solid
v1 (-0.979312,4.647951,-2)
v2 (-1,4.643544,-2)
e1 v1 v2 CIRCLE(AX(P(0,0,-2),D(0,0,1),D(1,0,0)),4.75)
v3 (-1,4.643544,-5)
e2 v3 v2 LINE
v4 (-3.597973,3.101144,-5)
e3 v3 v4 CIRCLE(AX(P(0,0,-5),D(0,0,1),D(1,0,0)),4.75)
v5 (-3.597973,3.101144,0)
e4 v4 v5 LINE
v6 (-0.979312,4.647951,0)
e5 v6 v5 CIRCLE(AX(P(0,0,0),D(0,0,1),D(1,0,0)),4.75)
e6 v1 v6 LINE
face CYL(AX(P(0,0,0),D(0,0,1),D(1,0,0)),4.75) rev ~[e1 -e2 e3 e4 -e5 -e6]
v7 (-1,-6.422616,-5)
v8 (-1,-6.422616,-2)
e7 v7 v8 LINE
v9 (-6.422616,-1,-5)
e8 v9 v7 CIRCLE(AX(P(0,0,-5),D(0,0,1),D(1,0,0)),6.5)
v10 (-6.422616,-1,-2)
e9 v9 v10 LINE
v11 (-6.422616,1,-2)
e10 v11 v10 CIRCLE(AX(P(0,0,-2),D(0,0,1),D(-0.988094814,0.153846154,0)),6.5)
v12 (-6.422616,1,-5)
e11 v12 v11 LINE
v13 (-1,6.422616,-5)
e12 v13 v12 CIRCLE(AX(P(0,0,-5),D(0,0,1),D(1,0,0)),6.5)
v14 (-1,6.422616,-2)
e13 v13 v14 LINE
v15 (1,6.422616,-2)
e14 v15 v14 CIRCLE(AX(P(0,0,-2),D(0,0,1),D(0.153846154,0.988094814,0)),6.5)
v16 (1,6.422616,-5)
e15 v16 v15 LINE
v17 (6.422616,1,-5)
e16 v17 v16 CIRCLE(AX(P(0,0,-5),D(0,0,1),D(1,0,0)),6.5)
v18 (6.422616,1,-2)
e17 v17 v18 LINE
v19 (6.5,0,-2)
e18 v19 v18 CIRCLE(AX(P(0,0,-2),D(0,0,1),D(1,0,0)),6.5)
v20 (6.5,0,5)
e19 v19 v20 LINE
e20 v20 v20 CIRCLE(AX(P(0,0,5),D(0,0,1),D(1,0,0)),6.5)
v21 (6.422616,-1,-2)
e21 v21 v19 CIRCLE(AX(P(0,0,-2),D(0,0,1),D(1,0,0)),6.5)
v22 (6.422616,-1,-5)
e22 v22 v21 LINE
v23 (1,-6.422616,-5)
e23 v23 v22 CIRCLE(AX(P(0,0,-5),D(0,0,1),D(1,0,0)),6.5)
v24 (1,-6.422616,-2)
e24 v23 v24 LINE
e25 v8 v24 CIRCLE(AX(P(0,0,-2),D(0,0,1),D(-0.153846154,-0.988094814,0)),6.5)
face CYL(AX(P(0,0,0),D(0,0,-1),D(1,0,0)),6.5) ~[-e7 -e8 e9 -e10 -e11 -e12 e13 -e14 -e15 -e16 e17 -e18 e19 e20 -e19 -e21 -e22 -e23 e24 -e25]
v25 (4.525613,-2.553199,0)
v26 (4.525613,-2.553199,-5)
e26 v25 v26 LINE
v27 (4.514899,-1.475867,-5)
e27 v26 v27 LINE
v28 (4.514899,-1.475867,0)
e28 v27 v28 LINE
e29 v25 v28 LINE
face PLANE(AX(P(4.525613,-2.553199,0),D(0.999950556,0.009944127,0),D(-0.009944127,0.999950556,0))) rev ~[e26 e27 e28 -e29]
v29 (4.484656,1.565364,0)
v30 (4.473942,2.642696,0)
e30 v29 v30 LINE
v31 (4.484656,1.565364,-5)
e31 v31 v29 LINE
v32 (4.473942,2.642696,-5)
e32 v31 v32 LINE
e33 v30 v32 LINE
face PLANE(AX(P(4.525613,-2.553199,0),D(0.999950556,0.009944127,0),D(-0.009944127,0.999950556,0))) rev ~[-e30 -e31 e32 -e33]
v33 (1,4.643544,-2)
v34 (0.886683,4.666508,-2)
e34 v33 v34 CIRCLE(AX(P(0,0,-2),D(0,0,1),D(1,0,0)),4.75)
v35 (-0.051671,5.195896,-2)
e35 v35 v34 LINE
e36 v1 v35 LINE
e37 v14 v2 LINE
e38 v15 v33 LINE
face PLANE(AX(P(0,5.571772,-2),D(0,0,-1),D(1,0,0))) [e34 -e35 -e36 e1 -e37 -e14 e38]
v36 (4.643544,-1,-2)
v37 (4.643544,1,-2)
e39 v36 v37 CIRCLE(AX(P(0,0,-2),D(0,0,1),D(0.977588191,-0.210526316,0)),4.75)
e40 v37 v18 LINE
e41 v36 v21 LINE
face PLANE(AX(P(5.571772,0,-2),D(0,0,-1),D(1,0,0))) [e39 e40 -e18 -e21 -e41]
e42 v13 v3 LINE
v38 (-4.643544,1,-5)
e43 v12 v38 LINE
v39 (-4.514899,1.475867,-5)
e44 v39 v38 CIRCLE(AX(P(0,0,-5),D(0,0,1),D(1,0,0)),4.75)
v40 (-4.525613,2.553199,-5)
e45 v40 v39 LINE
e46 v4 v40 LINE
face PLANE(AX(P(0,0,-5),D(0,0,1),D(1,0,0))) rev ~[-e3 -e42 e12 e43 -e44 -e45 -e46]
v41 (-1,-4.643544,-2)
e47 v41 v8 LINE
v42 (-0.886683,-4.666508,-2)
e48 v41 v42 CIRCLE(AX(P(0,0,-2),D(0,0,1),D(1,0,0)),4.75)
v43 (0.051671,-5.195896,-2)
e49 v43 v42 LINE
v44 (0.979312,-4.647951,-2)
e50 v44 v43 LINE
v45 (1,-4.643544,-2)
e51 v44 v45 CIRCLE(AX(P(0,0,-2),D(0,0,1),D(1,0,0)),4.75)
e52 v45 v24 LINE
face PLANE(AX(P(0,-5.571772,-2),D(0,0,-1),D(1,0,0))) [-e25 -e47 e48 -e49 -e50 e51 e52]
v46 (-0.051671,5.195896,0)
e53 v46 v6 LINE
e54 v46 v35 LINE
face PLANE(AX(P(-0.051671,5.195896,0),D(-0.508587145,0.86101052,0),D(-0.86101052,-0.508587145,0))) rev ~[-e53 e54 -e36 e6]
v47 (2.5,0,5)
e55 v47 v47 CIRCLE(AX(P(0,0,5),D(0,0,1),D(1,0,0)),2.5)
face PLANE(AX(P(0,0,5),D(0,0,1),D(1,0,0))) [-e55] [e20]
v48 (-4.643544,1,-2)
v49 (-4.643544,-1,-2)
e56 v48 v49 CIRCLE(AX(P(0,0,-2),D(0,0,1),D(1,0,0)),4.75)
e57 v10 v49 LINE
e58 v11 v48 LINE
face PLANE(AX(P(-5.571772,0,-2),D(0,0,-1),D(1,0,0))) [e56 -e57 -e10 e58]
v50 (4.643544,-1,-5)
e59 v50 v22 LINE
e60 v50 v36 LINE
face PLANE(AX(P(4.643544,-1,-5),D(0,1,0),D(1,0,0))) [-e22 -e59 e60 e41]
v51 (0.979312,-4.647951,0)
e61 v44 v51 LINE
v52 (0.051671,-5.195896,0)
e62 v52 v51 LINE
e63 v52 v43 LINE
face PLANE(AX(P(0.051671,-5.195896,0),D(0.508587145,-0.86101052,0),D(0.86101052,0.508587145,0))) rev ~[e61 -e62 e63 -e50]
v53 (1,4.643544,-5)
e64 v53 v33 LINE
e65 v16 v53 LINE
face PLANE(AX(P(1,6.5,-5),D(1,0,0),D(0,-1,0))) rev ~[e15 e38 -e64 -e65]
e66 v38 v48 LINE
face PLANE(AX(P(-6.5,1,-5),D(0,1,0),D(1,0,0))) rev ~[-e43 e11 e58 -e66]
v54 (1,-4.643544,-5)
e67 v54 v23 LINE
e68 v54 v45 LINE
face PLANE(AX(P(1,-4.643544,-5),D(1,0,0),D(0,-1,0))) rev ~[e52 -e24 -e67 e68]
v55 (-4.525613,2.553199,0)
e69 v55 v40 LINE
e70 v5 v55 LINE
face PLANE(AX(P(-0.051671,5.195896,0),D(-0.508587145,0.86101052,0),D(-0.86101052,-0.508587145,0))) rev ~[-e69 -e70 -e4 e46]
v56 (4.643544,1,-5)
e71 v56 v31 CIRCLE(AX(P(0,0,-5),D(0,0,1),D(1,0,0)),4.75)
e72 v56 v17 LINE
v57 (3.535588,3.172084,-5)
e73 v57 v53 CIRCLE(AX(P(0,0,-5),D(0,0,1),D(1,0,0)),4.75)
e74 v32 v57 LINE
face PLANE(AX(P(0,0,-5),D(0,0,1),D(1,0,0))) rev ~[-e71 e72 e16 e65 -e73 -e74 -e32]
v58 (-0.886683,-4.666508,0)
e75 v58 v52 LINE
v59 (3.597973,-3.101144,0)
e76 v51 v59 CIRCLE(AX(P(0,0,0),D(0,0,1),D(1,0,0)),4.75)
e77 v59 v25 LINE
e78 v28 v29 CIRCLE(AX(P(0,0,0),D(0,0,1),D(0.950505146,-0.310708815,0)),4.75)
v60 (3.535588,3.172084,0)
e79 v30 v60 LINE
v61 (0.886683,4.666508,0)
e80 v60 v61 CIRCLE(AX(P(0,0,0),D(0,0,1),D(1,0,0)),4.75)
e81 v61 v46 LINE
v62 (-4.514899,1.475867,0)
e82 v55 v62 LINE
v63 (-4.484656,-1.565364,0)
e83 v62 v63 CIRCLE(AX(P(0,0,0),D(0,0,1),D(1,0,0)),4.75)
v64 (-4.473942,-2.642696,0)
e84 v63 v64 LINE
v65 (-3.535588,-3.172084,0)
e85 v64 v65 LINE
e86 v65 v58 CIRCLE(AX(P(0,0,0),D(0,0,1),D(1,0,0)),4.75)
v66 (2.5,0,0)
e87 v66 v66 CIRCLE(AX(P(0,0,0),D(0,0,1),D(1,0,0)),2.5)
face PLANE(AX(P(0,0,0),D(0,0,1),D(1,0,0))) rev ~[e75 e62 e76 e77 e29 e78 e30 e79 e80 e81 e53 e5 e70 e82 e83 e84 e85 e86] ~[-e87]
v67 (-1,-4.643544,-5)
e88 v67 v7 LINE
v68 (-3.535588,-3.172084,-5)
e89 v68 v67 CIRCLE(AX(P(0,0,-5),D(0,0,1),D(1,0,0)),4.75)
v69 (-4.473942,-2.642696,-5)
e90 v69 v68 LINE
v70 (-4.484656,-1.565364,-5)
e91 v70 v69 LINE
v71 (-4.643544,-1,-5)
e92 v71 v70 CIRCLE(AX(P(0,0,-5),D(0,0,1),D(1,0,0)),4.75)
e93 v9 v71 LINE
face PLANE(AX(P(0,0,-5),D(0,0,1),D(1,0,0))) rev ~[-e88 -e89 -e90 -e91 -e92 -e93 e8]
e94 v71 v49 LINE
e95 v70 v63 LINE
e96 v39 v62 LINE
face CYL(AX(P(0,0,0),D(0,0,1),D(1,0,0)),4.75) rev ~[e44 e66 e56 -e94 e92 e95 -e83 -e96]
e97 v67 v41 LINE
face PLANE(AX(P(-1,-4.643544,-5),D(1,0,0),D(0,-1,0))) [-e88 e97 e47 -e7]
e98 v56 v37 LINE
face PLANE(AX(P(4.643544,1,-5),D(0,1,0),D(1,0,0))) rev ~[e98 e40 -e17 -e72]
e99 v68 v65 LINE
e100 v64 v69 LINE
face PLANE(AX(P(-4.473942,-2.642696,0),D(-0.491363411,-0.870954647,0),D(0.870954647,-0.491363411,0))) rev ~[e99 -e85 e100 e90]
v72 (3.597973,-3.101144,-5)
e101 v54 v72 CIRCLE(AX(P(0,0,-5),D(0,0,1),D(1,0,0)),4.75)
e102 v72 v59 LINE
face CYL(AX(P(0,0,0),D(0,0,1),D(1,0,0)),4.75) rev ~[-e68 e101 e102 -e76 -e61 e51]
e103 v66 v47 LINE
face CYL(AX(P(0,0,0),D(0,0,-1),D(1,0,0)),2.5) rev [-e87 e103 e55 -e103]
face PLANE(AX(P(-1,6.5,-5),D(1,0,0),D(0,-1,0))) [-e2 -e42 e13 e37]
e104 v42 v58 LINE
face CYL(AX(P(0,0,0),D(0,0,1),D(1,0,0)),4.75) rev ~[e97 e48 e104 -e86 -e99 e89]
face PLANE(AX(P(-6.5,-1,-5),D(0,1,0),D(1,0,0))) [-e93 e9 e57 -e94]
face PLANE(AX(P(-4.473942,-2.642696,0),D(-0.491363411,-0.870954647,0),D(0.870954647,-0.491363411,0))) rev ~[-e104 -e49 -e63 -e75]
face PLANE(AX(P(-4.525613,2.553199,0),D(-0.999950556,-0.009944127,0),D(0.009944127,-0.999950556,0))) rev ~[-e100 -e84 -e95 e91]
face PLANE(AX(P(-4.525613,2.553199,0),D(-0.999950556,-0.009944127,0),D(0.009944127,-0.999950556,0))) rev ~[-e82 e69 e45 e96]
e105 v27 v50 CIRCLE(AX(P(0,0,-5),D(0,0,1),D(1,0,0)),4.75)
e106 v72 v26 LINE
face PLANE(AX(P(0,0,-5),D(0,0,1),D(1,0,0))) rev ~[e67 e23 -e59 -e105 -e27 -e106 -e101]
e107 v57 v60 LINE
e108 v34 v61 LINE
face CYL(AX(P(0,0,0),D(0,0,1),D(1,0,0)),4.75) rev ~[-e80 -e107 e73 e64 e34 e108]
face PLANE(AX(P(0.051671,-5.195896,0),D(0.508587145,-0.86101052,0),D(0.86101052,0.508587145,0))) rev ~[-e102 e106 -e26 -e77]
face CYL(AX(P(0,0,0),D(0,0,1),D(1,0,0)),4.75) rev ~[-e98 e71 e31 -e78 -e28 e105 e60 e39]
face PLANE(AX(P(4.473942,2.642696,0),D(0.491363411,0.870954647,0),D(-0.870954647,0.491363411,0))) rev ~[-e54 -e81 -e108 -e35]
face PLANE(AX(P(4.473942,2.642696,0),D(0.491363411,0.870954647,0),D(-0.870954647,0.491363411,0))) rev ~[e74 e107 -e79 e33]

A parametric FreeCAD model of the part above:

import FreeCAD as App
import Part
import Sketcher
from FreeCAD import Vector

doc = App.newDocument("Part")
body = doc.addObject("PartDesign::Body", "Body")

sketch1 = doc.addObject("Sketcher::SketchObject", "Sketch")
body.addObject(sketch1)
sketch1.AttachmentSupport = (doc.XY_Plane, [""])
sketch1.MapMode = "FlatFace"
sketch1.addGeometry([
    Part.Circle(Vector(0, 0, 0), Vector(0, 0, 1), 6.5),
    Part.Circle(Vector(0, 0, 0), Vector(0, 0, 1), 4.8),
], False)
sketch1.addConstraint([
    Sketcher.Constraint("Coincident", 0, 3, -1, 1),
    Sketcher.Constraint("Coincident", 1, 3, -1, 1),
    Sketcher.Constraint("Diameter", 0, 13.0),
    Sketcher.Constraint("Diameter", 1, 9.5),
])
pad1 = doc.addObject("PartDesign::Pad", "Pad")
body.addObject(pad1)
pad1.Profile = sketch1
pad1.Length = 5
pad1.Reversed = True

sketch2 = doc.addObject("Sketcher::SketchObject", "Sketch001")
body.addObject(sketch2)
sketch2.AttachmentSupport = (doc.XY_Plane, [""])
sketch2.MapMode = "FlatFace"
sketch2.addGeometry([
    Part.Circle(Vector(0, 0, 0), Vector(0, 0, 1), 6.5),
    Part.Circle(Vector(0, 0, 0), Vector(0, 0, 1), 2.5),
], False)
sketch2.addConstraint([
    Sketcher.Constraint("Coincident", 0, 3, -1, 1),
    Sketcher.Constraint("Coincident", 1, 3, -1, 1),
    Sketcher.Constraint("Diameter", 0, 13.0),
    Sketcher.Constraint("Diameter", 1, 5.0),
])
pad2 = doc.addObject("PartDesign::Pad", "Pad001")
body.addObject(pad2)
pad2.Profile = sketch2
pad2.Length = 5

sketch3 = doc.addObject("Sketcher::SketchObject", "Sketch002")
body.addObject(sketch3)
sketch3.AttachmentSupport = (doc.XY_Plane, [""])
sketch3.MapMode = "FlatFace"
sketch3.AttachmentOffset = App.Placement(Vector(0, 0, -5), App.Rotation())
sketch3.addGeometry([
    Part.LineSegment(Vector(-6.5, -1, 0), Vector(-6.5, 1, 0)),
    Part.LineSegment(Vector(-6.5, 1, 0), Vector(-4.6, 1, 0)),
    Part.LineSegment(Vector(-4.6, 1, 0), Vector(-4.6, -1, 0)),
    Part.LineSegment(Vector(-4.6, -1, 0), Vector(-6.5, -1, 0)),
    Part.LineSegment(Vector(-1, 4.6, 0), Vector(-1, 6.5, 0)),
    Part.LineSegment(Vector(-1, 6.5, 0), Vector(1, 6.5, 0)),
    Part.LineSegment(Vector(1, 6.5, 0), Vector(1, 4.6, 0)),
    Part.LineSegment(Vector(1, 4.6, 0), Vector(-1, 4.6, 0)),
    Part.LineSegment(Vector(4.6, -1, 0), Vector(4.6, 1, 0)),
    Part.LineSegment(Vector(4.6, 1, 0), Vector(6.5, 1, 0)),
    Part.LineSegment(Vector(6.5, 1, 0), Vector(6.5, -1, 0)),
    Part.LineSegment(Vector(6.5, -1, 0), Vector(4.6, -1, 0)),
    Part.LineSegment(Vector(-1, -6.5, 0), Vector(-1, -4.6, 0)),
    Part.LineSegment(Vector(-1, -4.6, 0), Vector(1, -4.6, 0)),
    Part.LineSegment(Vector(1, -4.6, 0), Vector(1, -6.5, 0)),
    Part.LineSegment(Vector(1, -6.5, 0), Vector(-1, -6.5, 0)),
], False)
sketch3.addConstraint([
    Sketcher.Constraint("Coincident", 0, 2, 1, 1),
    Sketcher.Constraint("Coincident", 1, 2, 2, 1),
    Sketcher.Constraint("Coincident", 2, 2, 3, 1),
    Sketcher.Constraint("Coincident", 3, 2, 0, 1),
    Sketcher.Constraint("Coincident", 4, 2, 5, 1),
    Sketcher.Constraint("Coincident", 5, 2, 6, 1),
    Sketcher.Constraint("Coincident", 6, 2, 7, 1),
    Sketcher.Constraint("Coincident", 7, 2, 4, 1),
    Sketcher.Constraint("Coincident", 8, 2, 9, 1),
    Sketcher.Constraint("Coincident", 9, 2, 10, 1),
    Sketcher.Constraint("Coincident", 10, 2, 11, 1),
    Sketcher.Constraint("Coincident", 11, 2, 8, 1),
    Sketcher.Constraint("Coincident", 12, 2, 13, 1),
    Sketcher.Constraint("Coincident", 13, 2, 14, 1),
    Sketcher.Constraint("Coincident", 14, 2, 15, 1),
    Sketcher.Constraint("Coincident", 15, 2, 12, 1),
    Sketcher.Constraint("Vertical", 0),
    Sketcher.Constraint("Horizontal", 1),
    Sketcher.Constraint("Vertical", 2),
    Sketcher.Constraint("Horizontal", 3),
    Sketcher.Constraint("Vertical", 4),
    Sketcher.Constraint("Horizontal", 5),
    Sketcher.Constraint("Vertical", 6),
    Sketcher.Constraint("Horizontal", 7),
    Sketcher.Constraint("Vertical", 8),
    Sketcher.Constraint("Horizontal", 9),
    Sketcher.Constraint("Vertical", 10),
    Sketcher.Constraint("Horizontal", 11),
    Sketcher.Constraint("Vertical", 12),
    Sketcher.Constraint("Horizontal", 13),
    Sketcher.Constraint("Vertical", 14),
    Sketcher.Constraint("Horizontal", 15),
    Sketcher.Constraint("Symmetric", 2, 2, 8, 2, -1, 1),
    Sketcher.Constraint("Symmetric", 0, 2, 10, 2, -1, 1),
    Sketcher.Constraint("Symmetric", 6, 2, 12, 2, -1, 1),
    Sketcher.Constraint("Symmetric", 4, 2, 14, 2, -1, 1),
    Sketcher.Constraint("Horizontal", 1, 2, 8, 2),
    Sketcher.Constraint("Vertical", 7, 2, 12, 2),
    Sketcher.Constraint("Equal", 15, 0),
    Sketcher.Constraint("Equal", 11, 4),
    Sketcher.Constraint("DistanceX", 5, 1, 5, 2, 2.0),
    Sketcher.Constraint("DistanceX", 0, 2, -1, 1, 6.5),
    Sketcher.Constraint("DistanceY", -1, 1, 4, 2, 6.5),
    Sketcher.Constraint("DistanceX", 1, 1, 1, 2, 1.856456),
])
pocket1 = doc.addObject("PartDesign::Pocket", "Pocket")
body.addObject(pocket1)
pocket1.Profile = sketch3
pocket1.Length = 3
pocket1.Reversed = True

sketch4 = doc.addObject("Sketcher::SketchObject", "Sketch003")
body.addObject(sketch4)
sketch4.AttachmentSupport = (doc.XY_Plane, [""])
sketch4.MapMode = "FlatFace"
sketch4.addGeometry([
    Part.LineSegment(Vector(0, -5, 0), Vector(5, -3, 0)),
    Part.LineSegment(Vector(5, -3, 0), Vector(4, 3, 0)),
    Part.LineSegment(Vector(4, 3, 0), Vector(0, 5, 0)),
    Part.LineSegment(Vector(0, 5, 0), Vector(-5, 3, 0)),
    Part.LineSegment(Vector(-5, 3, 0), Vector(-4, -3, 0)),
    Part.LineSegment(Vector(-4, -3, 0), Vector(0, -5, 0)),
], False)
sketch4.addConstraint([
    Sketcher.Constraint("Coincident", 0, 2, 1, 1),
    Sketcher.Constraint("Coincident", 1, 2, 2, 1),
    Sketcher.Constraint("Coincident", 2, 2, 3, 1),
    Sketcher.Constraint("Coincident", 3, 2, 4, 1),
    Sketcher.Constraint("Coincident", 4, 2, 5, 1),
    Sketcher.Constraint("Coincident", 5, 2, 0, 1),
    Sketcher.Constraint("Symmetric", 0, 2, 3, 2, -1, 1),
    Sketcher.Constraint("Symmetric", 1, 2, 4, 2, -1, 1),
    Sketcher.Constraint("Symmetric", 2, 2, 5, 2, -1, 1),
    Sketcher.Constraint("Equal", 0, 1),
    Sketcher.Constraint("Equal", 1, 2),
    Sketcher.Constraint("DistanceY", 0, 2, -1, 1, 2.553199),
    Sketcher.Constraint("DistanceY", 1, 2, 2, 2, 2.553199),
    Sketcher.Constraint("DistanceX", -1, 1, 1, 2, 4.473942),
    Sketcher.Constraint("DistanceX", 2, 2, -1, 1, 0.051671),
])
pocket2 = doc.addObject("PartDesign::Pocket", "Pocket001")
body.addObject(pocket2)
pocket2.Profile = sketch4
pocket2.Type = "ThroughAll"

doc.recompute()
